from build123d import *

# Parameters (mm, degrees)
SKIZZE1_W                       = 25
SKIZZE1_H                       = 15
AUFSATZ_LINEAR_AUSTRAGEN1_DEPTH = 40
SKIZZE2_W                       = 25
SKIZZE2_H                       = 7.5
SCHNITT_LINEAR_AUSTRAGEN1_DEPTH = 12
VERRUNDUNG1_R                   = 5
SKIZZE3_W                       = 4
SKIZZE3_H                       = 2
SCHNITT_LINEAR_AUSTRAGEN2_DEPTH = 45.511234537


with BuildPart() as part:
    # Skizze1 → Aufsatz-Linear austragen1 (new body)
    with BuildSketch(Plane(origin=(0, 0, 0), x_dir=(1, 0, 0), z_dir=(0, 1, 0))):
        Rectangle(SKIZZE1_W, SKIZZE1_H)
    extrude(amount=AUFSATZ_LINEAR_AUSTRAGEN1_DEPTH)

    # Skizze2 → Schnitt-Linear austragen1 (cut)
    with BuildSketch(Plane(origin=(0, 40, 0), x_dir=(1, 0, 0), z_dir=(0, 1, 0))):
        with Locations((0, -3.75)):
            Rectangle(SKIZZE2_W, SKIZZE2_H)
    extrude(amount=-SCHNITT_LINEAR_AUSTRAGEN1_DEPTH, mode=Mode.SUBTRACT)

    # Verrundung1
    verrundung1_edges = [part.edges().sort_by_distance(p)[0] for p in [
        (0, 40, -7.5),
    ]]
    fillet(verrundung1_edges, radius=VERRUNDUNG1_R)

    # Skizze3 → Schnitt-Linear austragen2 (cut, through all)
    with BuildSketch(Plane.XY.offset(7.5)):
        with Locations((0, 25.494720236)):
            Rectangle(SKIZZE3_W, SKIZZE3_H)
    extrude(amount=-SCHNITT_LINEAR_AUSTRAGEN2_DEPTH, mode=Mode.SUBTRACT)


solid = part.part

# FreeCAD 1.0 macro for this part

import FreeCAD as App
import Part
import Sketcher

V = App.Vector


def edges_at(feature, points):
    """Names of the edges that pass closest to the given points."""
    edges = feature.Shape.Edges
    near = lambda p: min(range(len(edges)), key=lambda i: edges[i].distToShape(Part.Vertex(*p))[0])
    return sorted({f"Edge{near(p) + 1}" for p in points})

doc = App.newDocument("Part")
body = doc.addObject("PartDesign::Body", "Body")

# Sketch on XZ plane
sketch1 = body.newObject("Sketcher::SketchObject", "Sketch")
sketch1.AttachmentSupport = (doc.getObject("XZ_Plane"), [""])
sketch1.MapMode = "FlatFace"
sketch1.addGeometry([
    Part.LineSegment(V(-12, -8, 0), V(-12, 8, 0)),
    Part.LineSegment(V(-12, 8, 0), V(12, 8, 0)),
    Part.LineSegment(V(12, 8, 0), V(12, -8, 0)),
    Part.LineSegment(V(12, -8, 0), V(-12, -8, 0)),
], False)
sketch1.addConstraint([
    Sketcher.Constraint("Coincident", 0, 2, 1, 1),
    Sketcher.Constraint("Coincident", 1, 2, 2, 1),
    Sketcher.Constraint("Coincident", 2, 2, 3, 1),
    Sketcher.Constraint("Coincident", 3, 2, 0, 1),
    Sketcher.Constraint("Vertical", 0),
    Sketcher.Constraint("Horizontal", 1),
    Sketcher.Constraint("Vertical", 2),
    Sketcher.Constraint("Horizontal", 3),
    Sketcher.Constraint("Symmetric", 0, 2, 2, 2, -1, 1),
    Sketcher.Constraint("DistanceX", 1, 1, 1, 2, 25.0),
    Sketcher.Constraint("DistanceY", 0, 1, 0, 2, 15.0),
])
pad1 = body.newObject("PartDesign::Pad", "Pad")
pad1.Profile = sketch1
pad1.Length = 40
pad1.Reversed = True

# Sketch on XZ plane
sketch2 = body.newObject("Sketcher::SketchObject", "Sketch001")
sketch2.AttachmentSupport = (doc.getObject("XZ_Plane"), [""])
sketch2.MapMode = "FlatFace"
sketch2.AttachmentOffset = App.Placement(V(0, 0, -40), App.Rotation())
sketch2.addGeometry([
    Part.LineSegment(V(-12, 0, 0), V(-12, 8, 0)),
    Part.LineSegment(V(-12, 8, 0), V(12, 8, 0)),
    Part.LineSegment(V(12, 8, 0), V(12, 0, 0)),
    Part.LineSegment(V(12, 0, 0), V(-12, 0, 0)),
], False)
sketch2.addConstraint([
    Sketcher.Constraint("Coincident", 0, 2, 1, 1),
    Sketcher.Constraint("Coincident", 1, 2, 2, 1),
    Sketcher.Constraint("Coincident", 2, 2, 3, 1),
    Sketcher.Constraint("Coincident", 3, 2, 0, 1),
    Sketcher.Constraint("Vertical", 0),
    Sketcher.Constraint("Horizontal", 1),
    Sketcher.Constraint("Vertical", 2),
    Sketcher.Constraint("Horizontal", 3),
    Sketcher.Constraint("Symmetric", 2, 2, 3, 2, -1, 1),
    Sketcher.Constraint("DistanceX", 1, 1, 1, 2, 25.0),
    Sketcher.Constraint("DistanceY", 0, 1, 0, 2, 7.5),
])
pocket1 = body.newObject("PartDesign::Pocket", "Pocket")
pocket1.Profile = sketch2
pocket1.Length = 12
pocket1.Reversed = True
doc.recompute()

fillet = body.newObject("PartDesign::Fillet", "Fillet")
fillet.Base = (pocket1, edges_at(pocket1, [(0, 40, -7.5)]))
fillet.Radius = 5

# Sketch on XY plane
sketch3 = body.newObject("Sketcher::SketchObject", "Sketch002")
sketch3.AttachmentSupport = (doc.getObject("XY_Plane"), [""])
sketch3.MapMode = "FlatFace"
sketch3.AttachmentOffset = App.Placement(V(0, 0, 7.5), App.Rotation())
sketch3.addGeometry([
    Part.LineSegment(V(-2, 26.5, 0), V(-2, 24.5, 0)),
    Part.LineSegment(V(-2, 24.5, 0), V(2, 24.5, 0)),
    Part.LineSegment(V(2, 24.5, 0), V(2, 26.5, 0)),
    Part.LineSegment(V(2, 26.5, 0), V(-2, 26.5, 0)),
], False)
sketch3.addConstraint([
    Sketcher.Constraint("Coincident", 0, 2, 1, 1),
    Sketcher.Constraint("Coincident", 1, 2, 2, 1),
    Sketcher.Constraint("Coincident", 2, 2, 3, 1),
    Sketcher.Constraint("Coincident", 3, 2, 0, 1),
    Sketcher.Constraint("Vertical", 0),
    Sketcher.Constraint("Horizontal", 1),
    Sketcher.Constraint("Vertical", 2),
    Sketcher.Constraint("Horizontal", 3),
    Sketcher.Constraint("DistanceX", 1, 1, 1, 2, 4.0),
    Sketcher.Constraint("DistanceY", 0, 2, 0, 1, 2.0),
    Sketcher.Constraint("DistanceX", 0, 2, -1, 1, 2.0),
    Sketcher.Constraint("DistanceY", -1, 1, 0, 2, 24.49472),
])
pocket2 = body.newObject("PartDesign::Pocket", "Pocket001")
pocket2.Profile = sketch3
pocket2.Type = "ThroughAll"

doc.recompute()
